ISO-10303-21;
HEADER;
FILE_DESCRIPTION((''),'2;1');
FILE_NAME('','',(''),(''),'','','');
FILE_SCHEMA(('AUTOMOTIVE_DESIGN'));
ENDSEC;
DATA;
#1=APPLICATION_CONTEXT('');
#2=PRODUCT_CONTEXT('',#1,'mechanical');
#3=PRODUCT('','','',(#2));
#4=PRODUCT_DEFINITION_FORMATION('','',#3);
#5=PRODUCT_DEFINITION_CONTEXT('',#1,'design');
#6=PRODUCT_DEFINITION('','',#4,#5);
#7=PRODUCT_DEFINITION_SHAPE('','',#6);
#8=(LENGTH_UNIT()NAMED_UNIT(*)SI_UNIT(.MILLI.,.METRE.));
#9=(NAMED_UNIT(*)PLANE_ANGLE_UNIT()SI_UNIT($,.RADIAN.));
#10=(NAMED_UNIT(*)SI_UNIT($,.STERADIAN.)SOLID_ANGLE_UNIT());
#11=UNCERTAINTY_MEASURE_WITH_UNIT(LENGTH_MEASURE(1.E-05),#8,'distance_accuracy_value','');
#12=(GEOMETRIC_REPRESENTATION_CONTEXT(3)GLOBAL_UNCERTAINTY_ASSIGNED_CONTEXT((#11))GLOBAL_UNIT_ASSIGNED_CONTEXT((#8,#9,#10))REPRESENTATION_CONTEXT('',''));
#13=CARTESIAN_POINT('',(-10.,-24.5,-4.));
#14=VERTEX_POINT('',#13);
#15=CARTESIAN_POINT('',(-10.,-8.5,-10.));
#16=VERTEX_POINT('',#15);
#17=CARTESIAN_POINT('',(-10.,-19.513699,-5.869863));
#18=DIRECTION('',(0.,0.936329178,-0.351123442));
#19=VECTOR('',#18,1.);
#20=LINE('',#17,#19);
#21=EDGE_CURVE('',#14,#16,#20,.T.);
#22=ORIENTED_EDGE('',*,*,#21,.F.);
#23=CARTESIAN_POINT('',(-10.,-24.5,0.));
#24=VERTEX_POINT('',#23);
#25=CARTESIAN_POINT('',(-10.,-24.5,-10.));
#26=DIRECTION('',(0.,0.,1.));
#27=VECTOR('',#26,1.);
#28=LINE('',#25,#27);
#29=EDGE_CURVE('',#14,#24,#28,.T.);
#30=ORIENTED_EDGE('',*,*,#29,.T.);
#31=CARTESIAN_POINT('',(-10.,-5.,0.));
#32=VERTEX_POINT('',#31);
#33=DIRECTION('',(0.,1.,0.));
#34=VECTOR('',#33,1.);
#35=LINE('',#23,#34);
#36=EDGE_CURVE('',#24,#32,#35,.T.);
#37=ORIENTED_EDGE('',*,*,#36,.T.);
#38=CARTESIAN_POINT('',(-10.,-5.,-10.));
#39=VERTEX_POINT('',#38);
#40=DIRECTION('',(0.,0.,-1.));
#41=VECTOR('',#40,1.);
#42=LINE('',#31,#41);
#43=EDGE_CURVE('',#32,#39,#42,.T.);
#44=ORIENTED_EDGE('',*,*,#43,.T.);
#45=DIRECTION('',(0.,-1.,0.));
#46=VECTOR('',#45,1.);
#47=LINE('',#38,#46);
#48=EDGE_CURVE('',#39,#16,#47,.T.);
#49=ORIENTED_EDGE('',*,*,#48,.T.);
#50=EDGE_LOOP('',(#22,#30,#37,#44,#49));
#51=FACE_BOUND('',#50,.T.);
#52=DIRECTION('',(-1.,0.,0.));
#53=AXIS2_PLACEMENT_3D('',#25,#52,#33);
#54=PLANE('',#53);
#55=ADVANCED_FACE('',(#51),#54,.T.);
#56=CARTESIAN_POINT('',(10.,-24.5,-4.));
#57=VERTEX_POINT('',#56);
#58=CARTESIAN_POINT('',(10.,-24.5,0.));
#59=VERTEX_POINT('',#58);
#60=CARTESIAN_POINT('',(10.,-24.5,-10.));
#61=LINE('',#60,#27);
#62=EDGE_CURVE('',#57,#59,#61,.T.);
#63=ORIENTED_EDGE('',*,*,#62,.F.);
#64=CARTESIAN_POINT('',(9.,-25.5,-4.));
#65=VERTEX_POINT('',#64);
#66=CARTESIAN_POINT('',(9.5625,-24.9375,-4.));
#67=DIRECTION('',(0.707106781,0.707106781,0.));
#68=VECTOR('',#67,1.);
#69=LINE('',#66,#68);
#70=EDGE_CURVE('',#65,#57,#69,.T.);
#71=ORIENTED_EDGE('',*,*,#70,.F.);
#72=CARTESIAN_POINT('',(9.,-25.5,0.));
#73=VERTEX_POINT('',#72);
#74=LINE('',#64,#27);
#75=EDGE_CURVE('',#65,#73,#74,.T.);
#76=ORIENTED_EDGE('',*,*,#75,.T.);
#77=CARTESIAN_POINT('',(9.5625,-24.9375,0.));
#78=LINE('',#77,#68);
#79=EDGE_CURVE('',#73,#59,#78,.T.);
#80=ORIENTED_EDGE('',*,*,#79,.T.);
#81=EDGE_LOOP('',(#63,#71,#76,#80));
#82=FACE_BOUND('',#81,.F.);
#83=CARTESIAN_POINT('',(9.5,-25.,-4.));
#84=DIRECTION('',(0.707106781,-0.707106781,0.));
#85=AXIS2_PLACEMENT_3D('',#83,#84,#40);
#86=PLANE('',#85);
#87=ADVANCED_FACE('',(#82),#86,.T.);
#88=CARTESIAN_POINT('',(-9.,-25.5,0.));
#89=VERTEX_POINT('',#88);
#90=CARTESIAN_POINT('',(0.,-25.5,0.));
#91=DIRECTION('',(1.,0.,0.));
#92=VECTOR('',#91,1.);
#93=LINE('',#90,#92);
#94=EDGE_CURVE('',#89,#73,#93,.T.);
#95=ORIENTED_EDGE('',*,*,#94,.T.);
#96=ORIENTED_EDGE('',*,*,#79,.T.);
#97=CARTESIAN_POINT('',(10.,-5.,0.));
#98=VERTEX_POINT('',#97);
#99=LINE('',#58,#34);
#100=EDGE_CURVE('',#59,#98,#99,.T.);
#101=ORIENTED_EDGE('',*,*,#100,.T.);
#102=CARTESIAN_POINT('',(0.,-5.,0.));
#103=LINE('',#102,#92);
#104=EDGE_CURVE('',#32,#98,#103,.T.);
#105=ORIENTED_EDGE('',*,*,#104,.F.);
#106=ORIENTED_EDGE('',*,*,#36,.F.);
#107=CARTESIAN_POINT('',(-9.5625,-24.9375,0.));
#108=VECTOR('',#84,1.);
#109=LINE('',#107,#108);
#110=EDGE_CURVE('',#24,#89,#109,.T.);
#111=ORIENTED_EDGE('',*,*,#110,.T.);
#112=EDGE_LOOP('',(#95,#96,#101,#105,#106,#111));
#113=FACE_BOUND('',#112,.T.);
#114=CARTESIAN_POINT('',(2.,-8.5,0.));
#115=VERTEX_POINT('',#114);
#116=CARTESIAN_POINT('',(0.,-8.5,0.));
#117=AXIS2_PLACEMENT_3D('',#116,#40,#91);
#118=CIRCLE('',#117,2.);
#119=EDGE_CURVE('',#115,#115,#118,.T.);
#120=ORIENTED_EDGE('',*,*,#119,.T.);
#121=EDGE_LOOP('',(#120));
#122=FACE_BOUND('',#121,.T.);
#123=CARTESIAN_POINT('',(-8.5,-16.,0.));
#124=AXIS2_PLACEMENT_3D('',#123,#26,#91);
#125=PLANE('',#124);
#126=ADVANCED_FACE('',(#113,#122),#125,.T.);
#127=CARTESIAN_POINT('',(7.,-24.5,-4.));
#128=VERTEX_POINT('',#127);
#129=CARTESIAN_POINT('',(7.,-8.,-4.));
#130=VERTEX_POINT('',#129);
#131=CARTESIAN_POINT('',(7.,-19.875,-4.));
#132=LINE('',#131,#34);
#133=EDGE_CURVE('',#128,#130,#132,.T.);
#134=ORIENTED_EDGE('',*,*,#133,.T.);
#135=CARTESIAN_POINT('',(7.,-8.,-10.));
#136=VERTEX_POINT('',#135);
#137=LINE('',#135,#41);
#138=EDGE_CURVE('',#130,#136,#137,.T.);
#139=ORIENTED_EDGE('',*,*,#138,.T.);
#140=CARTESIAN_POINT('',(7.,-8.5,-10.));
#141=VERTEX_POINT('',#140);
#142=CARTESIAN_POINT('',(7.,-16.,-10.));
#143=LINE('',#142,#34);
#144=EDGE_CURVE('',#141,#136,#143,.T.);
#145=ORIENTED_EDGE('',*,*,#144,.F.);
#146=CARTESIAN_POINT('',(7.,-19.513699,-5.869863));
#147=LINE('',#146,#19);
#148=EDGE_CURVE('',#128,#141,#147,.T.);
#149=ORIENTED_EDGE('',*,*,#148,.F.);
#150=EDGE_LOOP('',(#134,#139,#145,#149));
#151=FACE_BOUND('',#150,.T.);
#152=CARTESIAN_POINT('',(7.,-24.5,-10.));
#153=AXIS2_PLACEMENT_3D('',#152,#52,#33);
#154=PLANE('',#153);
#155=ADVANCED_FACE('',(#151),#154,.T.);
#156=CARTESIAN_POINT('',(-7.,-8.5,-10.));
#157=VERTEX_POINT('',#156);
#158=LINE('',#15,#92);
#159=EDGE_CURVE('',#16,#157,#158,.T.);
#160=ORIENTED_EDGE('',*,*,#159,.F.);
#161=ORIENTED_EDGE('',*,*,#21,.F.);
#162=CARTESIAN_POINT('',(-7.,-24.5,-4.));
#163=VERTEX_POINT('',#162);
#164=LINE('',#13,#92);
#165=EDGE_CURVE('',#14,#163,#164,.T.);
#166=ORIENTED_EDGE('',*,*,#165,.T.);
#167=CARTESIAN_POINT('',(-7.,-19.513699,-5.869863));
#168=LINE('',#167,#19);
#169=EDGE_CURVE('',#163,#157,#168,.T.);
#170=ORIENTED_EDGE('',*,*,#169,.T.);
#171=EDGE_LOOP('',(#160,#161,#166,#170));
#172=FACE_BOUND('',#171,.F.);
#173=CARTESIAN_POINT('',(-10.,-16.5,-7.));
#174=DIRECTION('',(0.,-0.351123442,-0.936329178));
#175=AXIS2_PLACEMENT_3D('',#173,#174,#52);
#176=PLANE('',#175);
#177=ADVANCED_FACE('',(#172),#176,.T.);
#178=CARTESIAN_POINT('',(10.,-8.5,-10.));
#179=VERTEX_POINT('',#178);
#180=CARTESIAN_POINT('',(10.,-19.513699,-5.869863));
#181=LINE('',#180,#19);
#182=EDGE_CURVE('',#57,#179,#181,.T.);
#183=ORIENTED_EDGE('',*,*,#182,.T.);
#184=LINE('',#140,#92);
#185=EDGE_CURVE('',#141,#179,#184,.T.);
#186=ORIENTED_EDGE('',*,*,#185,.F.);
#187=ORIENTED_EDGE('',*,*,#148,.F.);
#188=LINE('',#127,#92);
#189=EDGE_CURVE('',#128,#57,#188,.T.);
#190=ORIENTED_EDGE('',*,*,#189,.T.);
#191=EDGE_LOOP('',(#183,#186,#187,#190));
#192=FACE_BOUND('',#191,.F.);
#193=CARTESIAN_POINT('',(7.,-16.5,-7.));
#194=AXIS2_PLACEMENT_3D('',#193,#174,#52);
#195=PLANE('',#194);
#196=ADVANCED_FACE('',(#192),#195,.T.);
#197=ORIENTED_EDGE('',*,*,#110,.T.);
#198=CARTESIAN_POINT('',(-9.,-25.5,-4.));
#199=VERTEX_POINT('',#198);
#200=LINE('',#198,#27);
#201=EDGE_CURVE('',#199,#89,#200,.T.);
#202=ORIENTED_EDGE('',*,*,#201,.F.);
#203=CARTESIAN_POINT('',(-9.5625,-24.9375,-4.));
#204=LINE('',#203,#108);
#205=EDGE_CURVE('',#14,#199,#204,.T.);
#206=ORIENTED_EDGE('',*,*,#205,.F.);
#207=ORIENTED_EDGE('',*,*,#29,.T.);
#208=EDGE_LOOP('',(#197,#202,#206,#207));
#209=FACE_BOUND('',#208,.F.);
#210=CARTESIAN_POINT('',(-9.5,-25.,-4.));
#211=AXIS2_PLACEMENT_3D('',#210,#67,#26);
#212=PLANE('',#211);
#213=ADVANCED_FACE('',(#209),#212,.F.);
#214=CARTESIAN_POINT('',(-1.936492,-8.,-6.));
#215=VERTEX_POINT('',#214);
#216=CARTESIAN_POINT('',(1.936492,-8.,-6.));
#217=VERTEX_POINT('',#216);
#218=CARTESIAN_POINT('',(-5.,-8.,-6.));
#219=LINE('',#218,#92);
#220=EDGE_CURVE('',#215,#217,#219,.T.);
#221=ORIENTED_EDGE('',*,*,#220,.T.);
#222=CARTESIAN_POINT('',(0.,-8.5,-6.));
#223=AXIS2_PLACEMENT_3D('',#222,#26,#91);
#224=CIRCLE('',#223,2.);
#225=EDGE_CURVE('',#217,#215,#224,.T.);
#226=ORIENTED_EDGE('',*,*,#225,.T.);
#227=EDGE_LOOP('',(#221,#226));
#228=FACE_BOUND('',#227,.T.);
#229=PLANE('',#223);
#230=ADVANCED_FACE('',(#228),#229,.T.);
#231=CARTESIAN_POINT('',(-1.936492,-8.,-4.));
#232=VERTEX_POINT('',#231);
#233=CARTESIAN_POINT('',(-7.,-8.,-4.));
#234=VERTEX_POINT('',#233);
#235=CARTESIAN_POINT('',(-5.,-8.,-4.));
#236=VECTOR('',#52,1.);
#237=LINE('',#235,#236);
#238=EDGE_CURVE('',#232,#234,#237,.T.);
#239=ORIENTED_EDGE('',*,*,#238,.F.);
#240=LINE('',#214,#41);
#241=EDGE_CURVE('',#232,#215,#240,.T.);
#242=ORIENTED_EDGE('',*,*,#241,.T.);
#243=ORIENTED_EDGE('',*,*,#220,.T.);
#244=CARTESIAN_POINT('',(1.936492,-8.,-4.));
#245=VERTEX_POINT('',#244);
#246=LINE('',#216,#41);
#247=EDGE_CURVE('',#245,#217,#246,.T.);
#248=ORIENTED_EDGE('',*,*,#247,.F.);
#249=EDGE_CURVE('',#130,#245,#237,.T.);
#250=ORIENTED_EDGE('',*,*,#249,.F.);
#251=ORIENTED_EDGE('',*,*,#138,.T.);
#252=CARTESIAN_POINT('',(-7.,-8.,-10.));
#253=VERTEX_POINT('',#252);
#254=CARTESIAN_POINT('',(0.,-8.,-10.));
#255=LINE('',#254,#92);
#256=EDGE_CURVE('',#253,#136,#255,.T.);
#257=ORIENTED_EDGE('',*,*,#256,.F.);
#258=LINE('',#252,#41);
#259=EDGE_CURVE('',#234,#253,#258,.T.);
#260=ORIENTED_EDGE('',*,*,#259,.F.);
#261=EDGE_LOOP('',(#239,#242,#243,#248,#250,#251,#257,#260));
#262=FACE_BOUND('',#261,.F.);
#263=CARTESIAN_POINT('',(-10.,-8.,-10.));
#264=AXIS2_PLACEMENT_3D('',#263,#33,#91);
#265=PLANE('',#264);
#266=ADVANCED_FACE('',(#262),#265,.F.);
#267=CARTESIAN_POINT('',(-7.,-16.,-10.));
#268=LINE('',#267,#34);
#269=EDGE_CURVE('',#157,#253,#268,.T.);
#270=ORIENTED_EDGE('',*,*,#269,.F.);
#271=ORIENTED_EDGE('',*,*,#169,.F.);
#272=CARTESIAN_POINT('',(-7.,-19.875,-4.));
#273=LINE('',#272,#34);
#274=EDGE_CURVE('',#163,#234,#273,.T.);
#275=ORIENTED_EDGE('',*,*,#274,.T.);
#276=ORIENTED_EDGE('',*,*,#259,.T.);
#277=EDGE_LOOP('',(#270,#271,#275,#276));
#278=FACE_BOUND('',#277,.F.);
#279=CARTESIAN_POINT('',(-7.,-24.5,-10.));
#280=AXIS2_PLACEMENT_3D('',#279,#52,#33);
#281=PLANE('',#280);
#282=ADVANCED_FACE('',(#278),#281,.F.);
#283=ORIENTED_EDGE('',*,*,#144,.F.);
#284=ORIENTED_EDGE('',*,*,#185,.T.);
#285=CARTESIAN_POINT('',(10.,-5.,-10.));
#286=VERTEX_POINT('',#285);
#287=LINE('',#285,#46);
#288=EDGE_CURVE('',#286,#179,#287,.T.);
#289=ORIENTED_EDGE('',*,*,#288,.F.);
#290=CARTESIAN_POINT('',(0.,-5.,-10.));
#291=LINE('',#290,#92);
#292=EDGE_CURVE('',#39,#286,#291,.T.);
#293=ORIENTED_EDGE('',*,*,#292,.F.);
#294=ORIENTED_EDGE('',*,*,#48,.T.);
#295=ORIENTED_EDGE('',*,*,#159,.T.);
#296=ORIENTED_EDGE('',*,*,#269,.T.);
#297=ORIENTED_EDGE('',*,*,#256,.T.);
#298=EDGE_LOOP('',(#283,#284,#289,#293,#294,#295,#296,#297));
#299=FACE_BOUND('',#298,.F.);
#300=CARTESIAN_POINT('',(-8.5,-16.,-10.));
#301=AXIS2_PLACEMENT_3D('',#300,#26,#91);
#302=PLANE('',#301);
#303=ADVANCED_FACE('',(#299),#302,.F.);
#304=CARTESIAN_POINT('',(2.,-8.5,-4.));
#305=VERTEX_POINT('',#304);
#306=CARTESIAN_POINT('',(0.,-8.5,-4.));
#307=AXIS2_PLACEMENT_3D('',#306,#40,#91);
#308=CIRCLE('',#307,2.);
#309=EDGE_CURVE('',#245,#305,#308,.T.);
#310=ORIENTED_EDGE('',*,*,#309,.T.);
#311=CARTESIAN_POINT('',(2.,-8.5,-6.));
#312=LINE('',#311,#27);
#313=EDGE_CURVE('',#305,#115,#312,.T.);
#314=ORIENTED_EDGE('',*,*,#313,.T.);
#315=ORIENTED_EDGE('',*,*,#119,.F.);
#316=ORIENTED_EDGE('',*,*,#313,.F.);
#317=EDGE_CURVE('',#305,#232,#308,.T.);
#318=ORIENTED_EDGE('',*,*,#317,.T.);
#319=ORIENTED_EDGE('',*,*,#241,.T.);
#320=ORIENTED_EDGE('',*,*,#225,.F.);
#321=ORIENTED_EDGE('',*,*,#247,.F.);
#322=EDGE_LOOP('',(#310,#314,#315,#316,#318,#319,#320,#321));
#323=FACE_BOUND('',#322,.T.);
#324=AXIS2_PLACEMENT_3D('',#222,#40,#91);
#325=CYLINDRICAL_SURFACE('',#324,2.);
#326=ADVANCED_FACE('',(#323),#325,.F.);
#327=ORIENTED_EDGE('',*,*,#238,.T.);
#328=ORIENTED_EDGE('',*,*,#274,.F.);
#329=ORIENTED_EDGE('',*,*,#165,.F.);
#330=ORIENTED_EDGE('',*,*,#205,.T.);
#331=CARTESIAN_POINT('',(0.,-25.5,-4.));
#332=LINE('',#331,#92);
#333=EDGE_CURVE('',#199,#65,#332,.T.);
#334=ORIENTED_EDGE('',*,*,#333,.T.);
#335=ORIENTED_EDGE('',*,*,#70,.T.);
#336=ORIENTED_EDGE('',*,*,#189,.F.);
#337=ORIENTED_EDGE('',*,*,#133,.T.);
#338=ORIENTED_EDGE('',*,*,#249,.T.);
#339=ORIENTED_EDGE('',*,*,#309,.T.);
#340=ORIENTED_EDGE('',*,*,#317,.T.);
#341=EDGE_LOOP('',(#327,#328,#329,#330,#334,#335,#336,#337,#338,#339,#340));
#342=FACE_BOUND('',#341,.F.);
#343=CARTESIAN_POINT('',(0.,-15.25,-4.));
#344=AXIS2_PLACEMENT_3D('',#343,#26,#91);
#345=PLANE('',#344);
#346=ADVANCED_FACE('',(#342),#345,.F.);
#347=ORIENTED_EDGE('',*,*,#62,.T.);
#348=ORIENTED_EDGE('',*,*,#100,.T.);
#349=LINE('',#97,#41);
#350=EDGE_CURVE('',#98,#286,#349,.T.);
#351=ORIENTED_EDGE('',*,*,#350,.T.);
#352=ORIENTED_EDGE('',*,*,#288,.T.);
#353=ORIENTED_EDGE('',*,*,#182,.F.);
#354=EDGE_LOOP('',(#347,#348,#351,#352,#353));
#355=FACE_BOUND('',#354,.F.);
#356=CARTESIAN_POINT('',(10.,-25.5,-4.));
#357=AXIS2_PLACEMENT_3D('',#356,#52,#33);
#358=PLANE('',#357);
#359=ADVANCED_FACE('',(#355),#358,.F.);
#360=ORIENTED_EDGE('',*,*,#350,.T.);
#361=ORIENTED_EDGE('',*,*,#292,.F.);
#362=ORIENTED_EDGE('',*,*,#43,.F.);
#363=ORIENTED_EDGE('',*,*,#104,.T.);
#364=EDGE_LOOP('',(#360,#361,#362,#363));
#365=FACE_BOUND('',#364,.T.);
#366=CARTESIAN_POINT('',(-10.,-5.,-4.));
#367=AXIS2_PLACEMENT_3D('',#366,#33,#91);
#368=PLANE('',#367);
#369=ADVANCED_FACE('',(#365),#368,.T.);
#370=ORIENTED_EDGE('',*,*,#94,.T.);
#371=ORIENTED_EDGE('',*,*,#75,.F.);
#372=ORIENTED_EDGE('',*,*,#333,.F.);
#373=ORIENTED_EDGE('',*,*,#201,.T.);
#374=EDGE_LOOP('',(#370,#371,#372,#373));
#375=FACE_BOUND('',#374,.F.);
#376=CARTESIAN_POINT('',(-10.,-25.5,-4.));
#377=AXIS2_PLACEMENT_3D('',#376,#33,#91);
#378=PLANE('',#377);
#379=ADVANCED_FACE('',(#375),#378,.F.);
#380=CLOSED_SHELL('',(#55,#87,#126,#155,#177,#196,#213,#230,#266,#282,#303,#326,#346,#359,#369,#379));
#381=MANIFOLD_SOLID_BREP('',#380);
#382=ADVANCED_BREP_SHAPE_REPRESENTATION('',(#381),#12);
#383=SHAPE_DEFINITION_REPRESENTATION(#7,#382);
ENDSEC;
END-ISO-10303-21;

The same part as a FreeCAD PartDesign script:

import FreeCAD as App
import Part
import Sketcher

V = App.Vector


def edges_at(feature, points):
    """Names of the edges that pass closest to the given points."""
    edges = feature.Shape.Edges
    near = lambda p: min(range(len(edges)), key=lambda i: edges[i].distToShape(Part.Vertex(*p))[0])
    return sorted({f"Edge{near(p) + 1}" for p in points})


def add_polygon(sketch, points):
    """Adds a closed chain of lines whose ends are joined by coincident constraints."""
    first, n = sketch.GeometryCount, len(points)
    for a, b in zip(points, points[1:] + points[:1]):
        sketch.addGeometry(Part.LineSegment(App.Vector(*a, 0), App.Vector(*b, 0)), False)
    for i in range(n):
        sketch.addConstraint(Sketcher.Constraint("Coincident", first + i, 2, first + (i + 1) % n, 1))

doc = App.newDocument("Part")
body = doc.addObject("PartDesign::Body", "Body")

# Sketch on XY plane
sketch1 = doc.addObject("Sketcher::SketchObject", "Sketch")
body.addObject(sketch1)
sketch1.AttachmentSupport = (doc.XY_Plane, [""])
sketch1.MapMode = "FlatFace"
sketch1.AttachmentOffset = App.Placement(V(0, 0, -6), App.Rotation())
sketch1.addGeometry(Part.Circle(V(0, -8.5, 0), V(0, 0, 1), 2), False)
sketch1.addConstraint(Sketcher.Constraint("PointOnObject", 0, 3, -2))
sketch1.addConstraint(Sketcher.Constraint("Diameter", 0, 4.0))
sketch1.addConstraint(Sketcher.Constraint("DistanceY", 0, 3, -1, 1, 8.5))
pad1 = doc.addObject("PartDesign::Pad", "Pad")
body.addObject(pad1)
pad1.Profile = sketch1
pad1.Length = 10
body2 = doc.addObject("PartDesign::Body", "Body001")

# Sketch on XY plane
sketch2 = doc.addObject("Sketcher::SketchObject", "Sketch001")
body2.addObject(sketch2)
sketch2.AttachmentSupport = (doc.getObject("XY_Plane001"), [""])
sketch2.MapMode = "FlatFace"
sketch2.AttachmentOffset = App.Placement(V(0, 0, -4), App.Rotation())
add_polygon(sketch2, [(-10, -5), (-10, -26), (10, -26), (10, -5)])  # lines 0-3
sketch2.addConstraint(Sketcher.Constraint("Vertical", 0))
sketch2.addConstraint(Sketcher.Constraint("Horizontal", 1))
sketch2.addConstraint(Sketcher.Constraint("Vertical", 2))
sketch2.addConstraint(Sketcher.Constraint("Horizontal", 3))
sketch2.addConstraint(Sketcher.Constraint("DistanceX", 1, 1, 1, 2, 20.0))
sketch2.addConstraint(Sketcher.Constraint("DistanceY", 0, 2, 0, 1, 20.5))
sketch2.addConstraint(Sketcher.Constraint("DistanceX", 0, 2, -1, 1, 10.0))
sketch2.addConstraint(Sketcher.Constraint("DistanceY", 2, 2, -1, 1, 5.0))
pad2 = doc.addObject("PartDesign::Pad", "Pad001")
body2.addObject(pad2)
pad2.Profile = sketch2
pad2.Length = 4
doc.recompute()

chamfer = doc.addObject("PartDesign::Chamfer", "Chamfer")
body2.addObject(chamfer)
chamfer.Base = (pad2, edges_at(pad2, [(-10, -25.5, -2), (10, -25.5, -2)]))
chamfer.Size = 1
body3 = doc.addObject("PartDesign::Body", "Body002")

# Sketch on XY plane
sketch3 = doc.addObject("Sketcher::SketchObject", "Sketch002")
body3.addObject(sketch3)
sketch3.AttachmentSupport = (doc.getObject("XY_Plane002"), [""])
sketch3.MapMode = "FlatFace"
sketch3.AttachmentOffset = App.Placement(V(0, 0, -10), App.Rotation())
add_polygon(sketch3, [(-10, -5), (-10, -8), (10, -8), (10, -5)])  # lines 0-3
sketch3.addConstraint(Sketcher.Constraint("Vertical", 0))
sketch3.addConstraint(Sketcher.Constraint("Horizontal", 1))
sketch3.addConstraint(Sketcher.Constraint("Vertical", 2))
sketch3.addConstraint(Sketcher.Constraint("Horizontal", 3))
sketch3.addConstraint(Sketcher.Constraint("DistanceX", 1, 1, 1, 2, 20.0))
sketch3.addConstraint(Sketcher.Constraint("DistanceY", 0, 2, 0, 1, 3.0))
sketch3.addConstraint(Sketcher.Constraint("DistanceX", 0, 2, -1, 1, 10.0))
sketch3.addConstraint(Sketcher.Constraint("DistanceY", 0, 2, -1, 1, 8.0))
pad3 = doc.addObject("PartDesign::Pad", "Pad002")
body3.addObject(pad3)
pad3.Profile = sketch3
pad3.Length = 10
body4 = doc.addObject("PartDesign::Body", "Body003")

# Sketch on XY plane
sketch4 = doc.addObject("Sketcher::SketchObject", "Sketch003")
body4.addObject(sketch4)
sketch4.AttachmentSupport = (doc.getObject("XY_Plane003"), [""])
sketch4.MapMode = "FlatFace"
sketch4.AttachmentOffset = App.Placement(V(0, 0, -10), App.Rotation())
add_polygon(sketch4, [(7, -7.5), (7, -24.5), (10, -24.5), (10, -7.5)])  # lines 0-3
sketch4.addConstraint(Sketcher.Constraint("Vertical", 0))
sketch4.addConstraint(Sketcher.Constraint("Horizontal", 1))
sketch4.addConstraint(Sketcher.Constraint("Vertical", 2))
sketch4.addConstraint(Sketcher.Constraint("Horizontal", 3))
sketch4.addConstraint(Sketcher.Constraint("DistanceX", 1, 1, 1, 2, 3.0))
sketch4.addConstraint(Sketcher.Constraint("DistanceY", 0, 2, 0, 1, 17.0))
sketch4.addConstraint(Sketcher.Constraint("DistanceX", -1, 1, 0, 2, 7.0))
sketch4.addConstraint(Sketcher.Constraint("DistanceY", 0, 2, -1, 1, 24.5))
pad4 = doc.addObject("PartDesign::Pad", "Pad003")
body4.addObject(pad4)
pad4.Profile = sketch4
pad4.Length = 10
body5 = doc.addObject("PartDesign::Body", "Body004")
body5.AllowCompound = True

# Sketch on XY plane
sketch5 = doc.addObject("Sketcher::SketchObject", "Sketch004")
body5.addObject(sketch5)
sketch5.AttachmentSupport = (doc.getObject("XY_Plane004"), [""])
sketch5.MapMode = "FlatFace"
sketch5.AttachmentOffset = App.Placement(V(0, 0, -10), App.Rotation())
add_polygon(sketch5, [(-10, -7.5), (-10, -24.5), (-7, -24.5), (-7, -7.5)])  # lines 0-3
sketch5.addConstraint(Sketcher.Constraint("Vertical", 0))
sketch5.addConstraint(Sketcher.Constraint("Horizontal", 1))
sketch5.addConstraint(Sketcher.Constraint("Vertical", 2))
sketch5.addConstraint(Sketcher.Constraint("Horizontal", 3))
sketch5.addConstraint(Sketcher.Constraint("DistanceX", 1, 1, 1, 2, 3.0))
sketch5.addConstraint(Sketcher.Constraint("DistanceY", 0, 2, 0, 1, 17.0))
sketch5.addConstraint(Sketcher.Constraint("DistanceX", 0, 2, -1, 1, 10.0))
sketch5.addConstraint(Sketcher.Constraint("DistanceY", 0, 2, -1, 1, 24.5))
pad5 = doc.addObject("PartDesign::Pad", "Pad004")
body5.addObject(pad5)
pad5.Profile = sketch5
pad5.Length = 10
doc.recompute()

boolean = doc.addObject("PartDesign::Boolean", "Boolean")
body5.addObject(boolean)
boolean.Type = "Fuse"
boolean.addObjects([body4])
doc.recompute()

chamfer2 = doc.addObject("PartDesign::Chamfer", "Chamfer001")
body5.addObject(chamfer2)
chamfer2.Base = (boolean, edges_at(boolean, [(8.5, -24.5, -10)]))
chamfer2.ChamferType = "Two distances"
chamfer2.Size = 6
chamfer2.Size2 = 16
doc.recompute()

chamfer3 = doc.addObject("PartDesign::Chamfer", "Chamfer002")
body5.addObject(chamfer3)
chamfer3.Base = (chamfer2, edges_at(chamfer2, [(-8.5, -24.5, -10)]))
chamfer3.ChamferType = "Two distances"
chamfer3.Size = 6
chamfer3.Size2 = 16
doc.recompute()

boolean2 = doc.addObject("PartDesign::Boolean", "Boolean001")
body5.addObject(boolean2)
boolean2.Type = "Fuse"
boolean2.addObjects([body2])
doc.recompute()

boolean3 = doc.addObject("PartDesign::Boolean", "Boolean002")
body5.addObject(boolean3)
boolean3.Type = "Fuse"
boolean3.addObjects([body3])
doc.recompute()

boolean4 = doc.addObject("PartDesign::Boolean", "Boolean003")
body5.addObject(boolean4)
boolean4.Type = "Cut"
boolean4.addObjects([body])

doc.recompute()
